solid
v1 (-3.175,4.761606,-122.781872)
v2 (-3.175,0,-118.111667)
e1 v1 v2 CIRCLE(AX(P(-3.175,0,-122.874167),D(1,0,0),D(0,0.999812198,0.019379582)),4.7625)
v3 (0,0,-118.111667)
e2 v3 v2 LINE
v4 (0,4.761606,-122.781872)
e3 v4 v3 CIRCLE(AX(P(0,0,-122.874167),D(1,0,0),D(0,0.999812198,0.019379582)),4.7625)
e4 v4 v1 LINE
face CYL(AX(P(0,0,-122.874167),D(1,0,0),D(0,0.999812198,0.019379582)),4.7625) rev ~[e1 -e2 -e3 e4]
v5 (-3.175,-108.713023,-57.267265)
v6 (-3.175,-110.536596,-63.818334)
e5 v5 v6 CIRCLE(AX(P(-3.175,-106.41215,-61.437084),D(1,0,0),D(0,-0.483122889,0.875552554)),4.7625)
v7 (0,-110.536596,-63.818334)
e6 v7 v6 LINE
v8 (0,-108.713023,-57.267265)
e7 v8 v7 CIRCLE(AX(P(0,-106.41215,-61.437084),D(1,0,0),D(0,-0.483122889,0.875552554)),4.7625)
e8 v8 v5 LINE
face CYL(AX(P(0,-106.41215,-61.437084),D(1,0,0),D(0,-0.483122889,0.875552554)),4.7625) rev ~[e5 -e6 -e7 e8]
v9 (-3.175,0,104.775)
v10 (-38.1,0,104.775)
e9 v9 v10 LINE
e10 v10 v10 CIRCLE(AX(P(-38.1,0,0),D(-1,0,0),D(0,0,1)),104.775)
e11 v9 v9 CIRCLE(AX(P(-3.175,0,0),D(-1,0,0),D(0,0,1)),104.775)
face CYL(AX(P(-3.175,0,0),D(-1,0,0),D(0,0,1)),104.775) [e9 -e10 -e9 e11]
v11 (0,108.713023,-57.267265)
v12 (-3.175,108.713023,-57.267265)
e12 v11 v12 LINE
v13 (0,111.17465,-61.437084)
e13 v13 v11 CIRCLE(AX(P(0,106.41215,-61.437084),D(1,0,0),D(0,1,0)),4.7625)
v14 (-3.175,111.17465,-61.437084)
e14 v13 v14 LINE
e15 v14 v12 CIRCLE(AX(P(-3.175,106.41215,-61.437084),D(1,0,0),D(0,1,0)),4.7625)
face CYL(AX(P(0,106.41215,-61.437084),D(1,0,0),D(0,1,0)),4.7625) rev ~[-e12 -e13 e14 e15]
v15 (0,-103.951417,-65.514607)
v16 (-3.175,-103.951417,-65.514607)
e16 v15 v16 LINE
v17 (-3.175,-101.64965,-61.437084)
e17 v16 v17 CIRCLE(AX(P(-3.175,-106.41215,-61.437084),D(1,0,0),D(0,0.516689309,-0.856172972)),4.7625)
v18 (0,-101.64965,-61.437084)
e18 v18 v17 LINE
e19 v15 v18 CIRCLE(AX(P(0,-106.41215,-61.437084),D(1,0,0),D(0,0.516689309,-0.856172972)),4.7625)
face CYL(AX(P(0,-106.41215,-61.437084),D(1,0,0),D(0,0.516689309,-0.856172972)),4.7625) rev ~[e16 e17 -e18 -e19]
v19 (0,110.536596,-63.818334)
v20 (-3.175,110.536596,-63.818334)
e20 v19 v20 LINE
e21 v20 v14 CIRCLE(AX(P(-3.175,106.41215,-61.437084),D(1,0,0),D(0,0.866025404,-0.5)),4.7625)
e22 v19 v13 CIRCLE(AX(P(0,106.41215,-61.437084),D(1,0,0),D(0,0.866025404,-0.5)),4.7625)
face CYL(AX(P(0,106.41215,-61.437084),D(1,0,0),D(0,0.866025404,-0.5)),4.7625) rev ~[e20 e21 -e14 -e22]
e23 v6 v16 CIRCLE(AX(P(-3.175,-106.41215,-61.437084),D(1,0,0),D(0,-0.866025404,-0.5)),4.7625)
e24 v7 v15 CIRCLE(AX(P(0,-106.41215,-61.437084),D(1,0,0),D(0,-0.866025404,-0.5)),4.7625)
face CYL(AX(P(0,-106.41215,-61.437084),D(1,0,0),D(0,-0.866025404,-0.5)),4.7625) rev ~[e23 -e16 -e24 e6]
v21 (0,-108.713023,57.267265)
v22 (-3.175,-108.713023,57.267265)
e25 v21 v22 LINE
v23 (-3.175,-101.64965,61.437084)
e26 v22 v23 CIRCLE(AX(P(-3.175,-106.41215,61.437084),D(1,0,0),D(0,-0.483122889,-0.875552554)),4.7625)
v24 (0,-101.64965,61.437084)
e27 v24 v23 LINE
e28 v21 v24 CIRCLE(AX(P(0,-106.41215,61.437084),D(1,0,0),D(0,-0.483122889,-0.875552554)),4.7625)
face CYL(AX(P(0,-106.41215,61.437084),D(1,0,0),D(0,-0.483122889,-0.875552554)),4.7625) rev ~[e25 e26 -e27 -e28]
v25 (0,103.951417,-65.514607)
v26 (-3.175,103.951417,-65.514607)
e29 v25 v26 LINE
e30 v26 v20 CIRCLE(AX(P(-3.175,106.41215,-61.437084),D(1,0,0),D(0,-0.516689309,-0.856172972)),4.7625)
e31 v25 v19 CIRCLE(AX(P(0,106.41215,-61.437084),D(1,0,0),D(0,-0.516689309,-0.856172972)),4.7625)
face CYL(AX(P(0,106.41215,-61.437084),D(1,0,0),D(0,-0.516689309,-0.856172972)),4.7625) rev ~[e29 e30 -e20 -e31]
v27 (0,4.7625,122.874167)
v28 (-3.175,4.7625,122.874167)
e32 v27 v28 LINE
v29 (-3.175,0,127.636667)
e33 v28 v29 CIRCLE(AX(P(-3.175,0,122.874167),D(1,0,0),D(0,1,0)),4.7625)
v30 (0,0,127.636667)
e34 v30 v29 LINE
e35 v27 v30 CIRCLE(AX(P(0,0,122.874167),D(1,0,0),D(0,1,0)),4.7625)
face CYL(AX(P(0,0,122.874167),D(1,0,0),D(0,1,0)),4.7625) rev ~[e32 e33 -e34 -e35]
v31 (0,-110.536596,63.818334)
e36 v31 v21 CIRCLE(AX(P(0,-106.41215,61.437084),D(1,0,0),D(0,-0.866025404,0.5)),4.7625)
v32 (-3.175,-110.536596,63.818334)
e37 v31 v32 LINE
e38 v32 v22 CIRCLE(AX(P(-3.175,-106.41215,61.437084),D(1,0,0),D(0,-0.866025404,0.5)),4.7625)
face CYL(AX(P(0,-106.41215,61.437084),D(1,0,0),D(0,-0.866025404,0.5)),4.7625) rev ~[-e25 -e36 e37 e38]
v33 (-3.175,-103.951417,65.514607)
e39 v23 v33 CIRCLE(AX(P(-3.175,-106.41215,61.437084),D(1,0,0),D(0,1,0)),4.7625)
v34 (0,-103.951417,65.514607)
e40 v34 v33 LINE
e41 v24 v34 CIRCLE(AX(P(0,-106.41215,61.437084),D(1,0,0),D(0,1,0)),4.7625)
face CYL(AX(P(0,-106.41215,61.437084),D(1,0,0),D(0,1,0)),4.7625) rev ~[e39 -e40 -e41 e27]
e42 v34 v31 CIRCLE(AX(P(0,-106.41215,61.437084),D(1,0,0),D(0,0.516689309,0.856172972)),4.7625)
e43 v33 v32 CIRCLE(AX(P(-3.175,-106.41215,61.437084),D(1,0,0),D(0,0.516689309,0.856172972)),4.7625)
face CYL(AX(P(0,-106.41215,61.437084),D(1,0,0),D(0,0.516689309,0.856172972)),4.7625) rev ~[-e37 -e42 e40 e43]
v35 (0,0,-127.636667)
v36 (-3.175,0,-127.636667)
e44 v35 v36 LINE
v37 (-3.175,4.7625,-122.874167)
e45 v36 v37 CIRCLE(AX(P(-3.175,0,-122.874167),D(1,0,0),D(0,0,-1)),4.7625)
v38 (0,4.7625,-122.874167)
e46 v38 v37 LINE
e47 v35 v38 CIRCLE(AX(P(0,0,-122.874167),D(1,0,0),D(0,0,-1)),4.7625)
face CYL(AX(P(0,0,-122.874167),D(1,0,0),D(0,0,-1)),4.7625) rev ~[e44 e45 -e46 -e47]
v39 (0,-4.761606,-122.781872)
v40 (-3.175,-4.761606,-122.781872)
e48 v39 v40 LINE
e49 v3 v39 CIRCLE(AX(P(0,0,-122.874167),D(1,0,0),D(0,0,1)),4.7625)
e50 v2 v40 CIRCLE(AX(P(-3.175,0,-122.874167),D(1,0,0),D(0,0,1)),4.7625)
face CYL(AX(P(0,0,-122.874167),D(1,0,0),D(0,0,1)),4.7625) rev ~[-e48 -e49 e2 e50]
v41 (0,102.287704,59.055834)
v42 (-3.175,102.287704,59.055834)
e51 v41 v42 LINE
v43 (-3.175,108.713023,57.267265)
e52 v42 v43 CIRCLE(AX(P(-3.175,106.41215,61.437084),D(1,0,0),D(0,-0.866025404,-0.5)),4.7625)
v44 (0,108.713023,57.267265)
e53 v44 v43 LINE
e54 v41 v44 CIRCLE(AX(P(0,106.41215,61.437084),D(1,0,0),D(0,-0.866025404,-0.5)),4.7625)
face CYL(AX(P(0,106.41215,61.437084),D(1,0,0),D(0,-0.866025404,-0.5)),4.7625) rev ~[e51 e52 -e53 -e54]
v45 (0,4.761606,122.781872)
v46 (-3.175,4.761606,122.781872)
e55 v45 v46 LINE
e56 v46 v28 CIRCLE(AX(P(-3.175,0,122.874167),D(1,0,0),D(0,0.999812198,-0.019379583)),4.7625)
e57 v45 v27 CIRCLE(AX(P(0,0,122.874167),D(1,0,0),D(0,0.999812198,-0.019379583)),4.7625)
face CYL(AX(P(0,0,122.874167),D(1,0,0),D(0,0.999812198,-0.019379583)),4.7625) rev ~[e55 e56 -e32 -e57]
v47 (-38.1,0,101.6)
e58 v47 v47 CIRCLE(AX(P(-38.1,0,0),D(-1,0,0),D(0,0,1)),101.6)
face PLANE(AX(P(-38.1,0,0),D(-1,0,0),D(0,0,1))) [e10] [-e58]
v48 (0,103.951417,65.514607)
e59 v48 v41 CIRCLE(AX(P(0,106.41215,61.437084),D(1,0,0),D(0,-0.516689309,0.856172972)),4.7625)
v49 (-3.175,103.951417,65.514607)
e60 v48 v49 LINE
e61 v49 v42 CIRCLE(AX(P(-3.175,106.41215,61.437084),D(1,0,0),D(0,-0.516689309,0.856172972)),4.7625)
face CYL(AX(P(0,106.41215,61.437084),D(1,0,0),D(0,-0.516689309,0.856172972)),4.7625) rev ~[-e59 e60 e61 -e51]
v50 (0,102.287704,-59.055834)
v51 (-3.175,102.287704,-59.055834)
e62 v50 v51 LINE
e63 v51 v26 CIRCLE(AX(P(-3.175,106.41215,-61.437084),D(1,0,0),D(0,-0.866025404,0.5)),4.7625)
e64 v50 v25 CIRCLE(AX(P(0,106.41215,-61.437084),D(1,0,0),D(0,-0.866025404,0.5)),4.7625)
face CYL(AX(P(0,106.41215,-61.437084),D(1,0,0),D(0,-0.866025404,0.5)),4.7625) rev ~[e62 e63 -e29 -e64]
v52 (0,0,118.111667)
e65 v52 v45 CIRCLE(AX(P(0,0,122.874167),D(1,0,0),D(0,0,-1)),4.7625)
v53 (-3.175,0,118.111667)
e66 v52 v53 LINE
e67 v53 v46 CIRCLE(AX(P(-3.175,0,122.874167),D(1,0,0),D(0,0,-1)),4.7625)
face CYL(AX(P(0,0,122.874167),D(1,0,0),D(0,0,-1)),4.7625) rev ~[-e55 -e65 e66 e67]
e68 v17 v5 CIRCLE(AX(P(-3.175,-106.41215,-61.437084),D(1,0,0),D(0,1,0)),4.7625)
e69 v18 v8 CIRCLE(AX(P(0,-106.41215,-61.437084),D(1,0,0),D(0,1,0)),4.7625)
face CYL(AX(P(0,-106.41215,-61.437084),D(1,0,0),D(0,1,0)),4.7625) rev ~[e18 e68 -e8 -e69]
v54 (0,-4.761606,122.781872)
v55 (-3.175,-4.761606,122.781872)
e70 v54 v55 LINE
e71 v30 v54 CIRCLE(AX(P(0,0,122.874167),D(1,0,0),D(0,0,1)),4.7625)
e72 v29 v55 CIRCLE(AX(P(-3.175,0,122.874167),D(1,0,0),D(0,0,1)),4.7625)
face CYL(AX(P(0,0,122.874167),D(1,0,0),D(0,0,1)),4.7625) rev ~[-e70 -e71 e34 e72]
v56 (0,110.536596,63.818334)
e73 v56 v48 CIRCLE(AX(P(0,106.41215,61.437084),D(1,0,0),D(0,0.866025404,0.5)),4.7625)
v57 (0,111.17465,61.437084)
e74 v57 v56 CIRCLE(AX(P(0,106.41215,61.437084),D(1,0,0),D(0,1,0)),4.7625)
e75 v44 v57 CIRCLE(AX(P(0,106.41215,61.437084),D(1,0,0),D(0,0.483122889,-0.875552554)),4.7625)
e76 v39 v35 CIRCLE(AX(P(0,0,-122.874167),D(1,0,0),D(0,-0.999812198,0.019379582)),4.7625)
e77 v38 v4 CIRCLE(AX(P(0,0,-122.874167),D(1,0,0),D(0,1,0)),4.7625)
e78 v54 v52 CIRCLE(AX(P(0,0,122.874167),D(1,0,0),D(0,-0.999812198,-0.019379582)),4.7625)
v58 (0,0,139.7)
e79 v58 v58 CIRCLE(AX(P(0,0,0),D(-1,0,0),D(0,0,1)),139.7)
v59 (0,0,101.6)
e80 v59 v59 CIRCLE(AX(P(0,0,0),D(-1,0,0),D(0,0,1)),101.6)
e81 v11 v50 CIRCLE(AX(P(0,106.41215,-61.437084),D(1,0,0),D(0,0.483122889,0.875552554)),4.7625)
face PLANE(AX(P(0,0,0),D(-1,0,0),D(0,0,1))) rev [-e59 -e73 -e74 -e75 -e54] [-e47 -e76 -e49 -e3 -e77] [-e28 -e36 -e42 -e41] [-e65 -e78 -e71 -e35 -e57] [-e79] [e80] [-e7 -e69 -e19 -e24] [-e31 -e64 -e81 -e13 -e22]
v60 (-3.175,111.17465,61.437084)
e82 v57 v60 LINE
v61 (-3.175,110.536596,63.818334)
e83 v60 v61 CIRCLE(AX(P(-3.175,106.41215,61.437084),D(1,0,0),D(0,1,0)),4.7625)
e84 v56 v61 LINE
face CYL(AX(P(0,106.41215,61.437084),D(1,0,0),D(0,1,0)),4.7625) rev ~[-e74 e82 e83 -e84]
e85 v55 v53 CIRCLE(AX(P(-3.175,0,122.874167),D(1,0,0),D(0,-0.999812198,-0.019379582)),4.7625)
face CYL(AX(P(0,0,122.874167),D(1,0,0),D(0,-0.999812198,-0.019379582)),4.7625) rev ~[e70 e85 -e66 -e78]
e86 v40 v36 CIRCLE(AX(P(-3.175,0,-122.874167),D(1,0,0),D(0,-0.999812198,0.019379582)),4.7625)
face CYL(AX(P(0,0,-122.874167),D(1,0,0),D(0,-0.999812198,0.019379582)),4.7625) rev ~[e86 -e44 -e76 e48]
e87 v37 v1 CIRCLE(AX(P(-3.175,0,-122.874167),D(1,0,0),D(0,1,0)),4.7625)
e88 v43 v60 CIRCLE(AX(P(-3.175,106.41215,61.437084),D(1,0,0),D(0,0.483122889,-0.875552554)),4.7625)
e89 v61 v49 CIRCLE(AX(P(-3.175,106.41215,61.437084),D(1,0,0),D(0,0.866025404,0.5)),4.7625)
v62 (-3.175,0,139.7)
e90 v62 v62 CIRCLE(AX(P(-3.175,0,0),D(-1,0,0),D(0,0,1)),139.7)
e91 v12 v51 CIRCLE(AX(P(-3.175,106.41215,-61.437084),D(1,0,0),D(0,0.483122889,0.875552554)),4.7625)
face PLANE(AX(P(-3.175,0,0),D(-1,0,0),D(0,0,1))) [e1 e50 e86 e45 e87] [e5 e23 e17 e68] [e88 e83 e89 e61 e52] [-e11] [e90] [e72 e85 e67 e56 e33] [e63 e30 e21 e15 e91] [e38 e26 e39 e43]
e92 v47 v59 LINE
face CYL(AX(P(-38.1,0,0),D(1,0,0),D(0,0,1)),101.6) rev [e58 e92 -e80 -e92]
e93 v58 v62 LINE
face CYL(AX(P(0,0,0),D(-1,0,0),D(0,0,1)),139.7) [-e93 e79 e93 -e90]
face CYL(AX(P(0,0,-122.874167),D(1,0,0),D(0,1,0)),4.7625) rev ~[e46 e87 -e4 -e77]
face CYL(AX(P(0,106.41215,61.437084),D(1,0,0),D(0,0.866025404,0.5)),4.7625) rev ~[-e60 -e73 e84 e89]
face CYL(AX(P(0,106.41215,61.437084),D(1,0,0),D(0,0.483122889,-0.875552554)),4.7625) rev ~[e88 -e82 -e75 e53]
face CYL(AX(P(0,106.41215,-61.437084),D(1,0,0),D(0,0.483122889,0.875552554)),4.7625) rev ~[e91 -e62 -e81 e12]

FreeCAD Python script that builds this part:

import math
import FreeCAD as App
import Part
import Sketcher
Q = App.Units.Quantity

doc = App.newDocument("Part")
body = doc.addObject("PartDesign::Body", "Body")

sketch1 = body.newObject("Sketcher::SketchObject", "Sketch")
sketch1.AttachmentSupport = (doc.getObject("XZ_Plane"), [""])
sketch1.MapMode = "FlatFace"
sketch1.addGeometry([
    Part.LineSegment(App.Vector(-38.1, 101.6, 0), App.Vector(0, 101.6, 0)),
    Part.LineSegment(App.Vector(0, 101.6, 0), App.Vector(0, 139.7, 0)),
    Part.LineSegment(App.Vector(0, 139.7, 0), App.Vector(-3.2, 139.7, 0)),
    Part.LineSegment(App.Vector(-3.2, 139.7, 0), App.Vector(-3.2, 104.8, 0)),
    Part.LineSegment(App.Vector(-3.2, 104.8, 0), App.Vector(-38.1, 104.8, 0)),
    Part.LineSegment(App.Vector(-38.1, 104.8, 0), App.Vector(-38.1, 101.6, 0)),
], False)
sketch1.addConstraint([
    Sketcher.Constraint("Coincident", 0, 2, 1, 1),
    Sketcher.Constraint("Coincident", 1, 2, 2, 1),
    Sketcher.Constraint("Coincident", 2, 2, 3, 1),
    Sketcher.Constraint("Coincident", 3, 2, 4, 1),
    Sketcher.Constraint("Coincident", 4, 2, 5, 1),
    Sketcher.Constraint("Coincident", 5, 2, 0, 1),
    Sketcher.Constraint("Horizontal", 0),
    Sketcher.Constraint("Vertical", 1),
    Sketcher.Constraint("Horizontal", 2),
    Sketcher.Constraint("Vertical", 3),
    Sketcher.Constraint("Horizontal", 4),
    Sketcher.Constraint("Vertical", 5),
    Sketcher.Constraint("PointOnObject", 0, 2, -2),
    Sketcher.Constraint("Equal", 0, 1),
    Sketcher.Constraint("Equal", 4, 3),
    Sketcher.Constraint("DistanceX", 0, 1, 0, 2, Q("1.5 in")),
    Sketcher.Constraint("DistanceY", -1, 1, 0, 2, Q("4 in")),
    Sketcher.Constraint("DistanceX", 2, 2, 2, 1, Q("0.125 in")),
])
revolution = body.newObject("PartDesign::Revolution", "Revolution")
revolution.Profile = sketch1
revolution.ReferenceAxis = (sketch1, ["H_Axis"])
revolution.Angle = 360

sketch2 = body.newObject("Sketcher::SketchObject", "Sketch001")
sketch2.AttachmentSupport = (doc.getObject("YZ_Plane"), [""])
sketch2.MapMode = "FlatFace"
sketch2.addGeometry([
    Part.ArcOfCircle(Part.Circle(App.Vector(-106.41, 61.44, 0), App.Vector(0, 0, 1), 4.76), math.radians(59), math.radians(150)),
    Part.ArcOfCircle(Part.Circle(App.Vector(-106.41, 61.44, 0), App.Vector(0, 0, 1), 4.76), math.radians(150), math.radians(241)),
    Part.ArcOfCircle(Part.Circle(App.Vector(-106.41, 61.44, 0), App.Vector(0, 0, 1), 4.76), math.radians(-119), math.radians(0)),
    Part.ArcOfCircle(Part.Circle(App.Vector(-106.41, 61.44, 0), App.Vector(0, 0, 1), 4.76), math.radians(0), math.radians(59)),
    Part.ArcOfCircle(Part.Circle(App.Vector(-106.41, -61.44, 0), App.Vector(0, 0, 1), 4.76), math.radians(-59), math.radians(0)),
    Part.ArcOfCircle(Part.Circle(App.Vector(-106.41, -61.44, 0), App.Vector(0, 0, 1), 4.76), math.radians(0), math.radians(119)),
    Part.ArcOfCircle(Part.Circle(App.Vector(-106.41, -61.44, 0), App.Vector(0, 0, 1), 4.76), math.radians(119), math.radians(210)),
    Part.ArcOfCircle(Part.Circle(App.Vector(-106.41, -61.44, 0), App.Vector(0, 0, 1), 4.76), math.radians(-150), math.radians(-59)),
    Part.ArcOfCircle(Part.Circle(App.Vector(0, -122.87, 0), App.Vector(0, 0, 1), 4.76), math.radians(0), math.radians(1.11)),
    Part.ArcOfCircle(Part.Circle(App.Vector(0, -122.87, 0), App.Vector(0, 0, 1), 4.76), math.radians(1), math.radians(90)),
    Part.ArcOfCircle(Part.Circle(App.Vector(0, -122.87, 0), App.Vector(0, 0, 1), 4.76), math.radians(90), math.radians(179)),
    Part.ArcOfCircle(Part.Circle(App.Vector(0, -122.87, 0), App.Vector(0, 0, 1), 4.76), math.radians(179), math.radians(270)),
    Part.ArcOfCircle(Part.Circle(App.Vector(0, -122.87, 0), App.Vector(0, 0, 1), 4.76), math.radians(-90), math.radians(0)),
    Part.ArcOfCircle(Part.Circle(App.Vector(106.41, -61.44, 0), App.Vector(0, 0, 1), 4.76), math.radians(61), math.radians(150)),
    Part.ArcOfCircle(Part.Circle(App.Vector(106.41, -61.44, 0), App.Vector(0, 0, 1), 4.76), math.radians(150), math.radians(239)),
    Part.ArcOfCircle(Part.Circle(App.Vector(106.41, -61.44, 0), App.Vector(0, 0, 1), 4.76), math.radians(-121), math.radians(-30)),
    Part.ArcOfCircle(Part.Circle(App.Vector(106.41, -61.44, 0), App.Vector(0, 0, 1), 4.76), math.radians(-30), math.radians(0)),
    Part.ArcOfCircle(Part.Circle(App.Vector(106.41, -61.44, 0), App.Vector(0, 0, 1), 4.76), math.radians(0), math.radians(61)),
    Part.ArcOfCircle(Part.Circle(App.Vector(106.41, 61.44, 0), App.Vector(0, 0, 1), 4.76), math.radians(-150), math.radians(-61)),
    Part.ArcOfCircle(Part.Circle(App.Vector(106.41, 61.44, 0), App.Vector(0, 0, 1), 4.76), math.radians(-61), math.radians(0)),
    Part.ArcOfCircle(Part.Circle(App.Vector(106.41, 61.44, 0), App.Vector(0, 0, 1), 4.76), math.radians(0), math.radians(30)),
    Part.ArcOfCircle(Part.Circle(App.Vector(106.41, 61.44, 0), App.Vector(0, 0, 1), 4.76), math.radians(30), math.radians(121)),
    Part.ArcOfCircle(Part.Circle(App.Vector(106.41, 61.44, 0), App.Vector(0, 0, 1), 4.76), math.radians(121), math.radians(210)),
    Part.ArcOfCircle(Part.Circle(App.Vector(0, 122.87, 0), App.Vector(0, 0, 1), 4.76), math.radians(-1.11), math.radians(0)),
    Part.ArcOfCircle(Part.Circle(App.Vector(0, 122.87, 0), App.Vector(0, 0, 1), 4.76), math.radians(0), math.radians(90)),
    Part.ArcOfCircle(Part.Circle(App.Vector(0, 122.87, 0), App.Vector(0, 0, 1), 4.76), math.radians(90), math.radians(181)),
    Part.ArcOfCircle(Part.Circle(App.Vector(0, 122.87, 0), App.Vector(0, 0, 1), 4.76), math.radians(-179), math.radians(-90)),
    Part.ArcOfCircle(Part.Circle(App.Vector(0, 122.87, 0), App.Vector(0, 0, 1), 4.76), math.radians(-90), math.radians(-1)),
], False)
sketch2.addConstraint([
    Sketcher.Constraint("Tangent", 0, 2, 1, 1),
    Sketcher.Constraint("Tangent", 1, 2, 2, 1),
    Sketcher.Constraint("Tangent", 2, 2, 3, 1),
    Sketcher.Constraint("Tangent", 3, 2, 0, 1),
    Sketcher.Constraint("Tangent", 4, 2, 5, 1),
    Sketcher.Constraint("Tangent", 5, 2, 6, 1),
    Sketcher.Constraint("Tangent", 6, 2, 7, 1),
    Sketcher.Constraint("Tangent", 7, 2, 4, 1),
    Sketcher.Constraint("Tangent", 8, 2, 9, 1),
    Sketcher.Constraint("Tangent", 9, 2, 10, 1),
    Sketcher.Constraint("Tangent", 10, 2, 11, 1),
    Sketcher.Constraint("Tangent", 11, 2, 12, 1),
    Sketcher.Constraint("Tangent", 12, 2, 8, 1),
    Sketcher.Constraint("Tangent", 13, 2, 14, 1),
    Sketcher.Constraint("Tangent", 14, 2, 15, 1),
    Sketcher.Constraint("Tangent", 15, 2, 16, 1),
    Sketcher.Constraint("Tangent", 16, 2, 17, 1),
    Sketcher.Constraint("Tangent", 17, 2, 13, 1),
    Sketcher.Constraint("Tangent", 18, 2, 19, 1),
    Sketcher.Constraint("Tangent", 19, 2, 20, 1),
    Sketcher.Constraint("Tangent", 20, 2, 21, 1),
    Sketcher.Constraint("Tangent", 21, 2, 22, 1),
    Sketcher.Constraint("Tangent", 22, 2, 18, 1),
    Sketcher.Constraint("Tangent", 23, 2, 24, 1),
    Sketcher.Constraint("Tangent", 24, 2, 25, 1),
    Sketcher.Constraint("Tangent", 25, 2, 26, 1),
    Sketcher.Constraint("Tangent", 26, 2, 27, 1),
    Sketcher.Constraint("Tangent", 27, 2, 23, 1),
    Sketcher.Constraint("Coincident", 10, 3, 8, 3),
    Sketcher.Constraint("Coincident", 15, 3, 13, 3),
    Sketcher.Constraint("Coincident", 20, 3, 18, 3),
    Sketcher.Constraint("Coincident", 25, 3, 23, 3),
    Sketcher.Constraint("Equal", 0, 1),
    Sketcher.Constraint("Equal", 3, 4),
    Sketcher.Constraint("Equal", 4, 5),
    Sketcher.Constraint("Equal", 7, 8),
    Sketcher.Constraint("Equal", 12, 13),
    Sketcher.Constraint("Equal", 17, 18),
    Sketcher.Constraint("Equal", 22, 23),
    Sketcher.Constraint("Symmetric", 0, 3, 13, 3, -1, 1),
    Sketcher.Constraint("Symmetric", 4, 3, 18, 3, -1, 1),
    Sketcher.Constraint("Symmetric", 8, 3, 23, 3, -1, 1),
    Sketcher.Constraint("Symmetric", 4, 3, 13, 3, -2),
    Sketcher.Constraint("Symmetric", 8, 2, 10, 2, -2),
    Sketcher.Constraint("PointOnObject", 9, 2, -2),
    Sketcher.Constraint("PointOnObject", 11, 2, -2),
    Sketcher.Constraint("PointOnObject", 24, 2, -2),
    Sketcher.Constraint("PointOnObject", 26, 2, -2),
    Sketcher.Constraint("Horizontal", 22, 3, 2, 2),
    Sketcher.Constraint("Horizontal", 17, 3, 4, 2),
    Sketcher.Constraint("Horizontal", 11, 3, 12, 2),
    Sketcher.Constraint("Horizontal", 7, 2, 14, 2),
    Sketcher.Constraint("Horizontal", 6, 2, 15, 2),
    Sketcher.Constraint("Horizontal", 4, 2, 16, 2),
    Sketcher.Constraint("Horizontal", 5, 2, 17, 2),
    Sketcher.Constraint("Horizontal", 1, 2, 18, 2),
    Sketcher.Constraint("Horizontal", 2, 2, 19, 2),
    Sketcher.Constraint("Horizontal", 0, 2, 20, 2),
    Sketcher.Constraint("Horizontal", 3, 2, 21, 2),
    Sketcher.Constraint("Horizontal", 27, 3, 23, 2),
    Sketcher.Constraint("Horizontal", 25, 2, 27, 2),
    Sketcher.Constraint("Vertical", 1, 2, 5, 2),
    Sketcher.Constraint("Vertical", 0, 2, 6, 2),
    Sketcher.Constraint("Vertical", 3, 2, 7, 2),
    Sketcher.Constraint("Vertical", 13, 2, 22, 2),
    Sketcher.Constraint("Vertical", 10, 2, 25, 2),
    Sketcher.Constraint("Radius", 0, Q("0.1875 in")),
    Sketcher.Constraint("DistanceY", 1, 3, 0, 2, Q("0.09375 in")),
    Sketcher.Constraint("DistanceY", 13, 3, 13, 2, Q("0.09375 in")),
    Sketcher.Constraint("DistanceX", 0, 3, -1, 1, Q("106.41215 mm")),
    Sketcher.Constraint("DistanceY", 8, 2, -1, 1, Q("122.781872 mm")),
    Sketcher.Constraint("DistanceY", 8, 3, 0, 3, Q("184.311251 mm")),
    Sketcher.Constraint("DistanceY", 1, 2, 1, 3, Q("4.169819 mm")),
    Sketcher.Constraint("DistanceY", -1, 1, 0, 3, Q("61.437084 mm")),
    Sketcher.Constraint("DistanceX", 3, 2, -1, 1, Q("103.951417 mm")),
])
pocket1 = body.newObject("PartDesign::Pocket", "Pocket")
pocket1.Profile = sketch2
pocket1.Length = Q("1 in")

doc.recompute()
